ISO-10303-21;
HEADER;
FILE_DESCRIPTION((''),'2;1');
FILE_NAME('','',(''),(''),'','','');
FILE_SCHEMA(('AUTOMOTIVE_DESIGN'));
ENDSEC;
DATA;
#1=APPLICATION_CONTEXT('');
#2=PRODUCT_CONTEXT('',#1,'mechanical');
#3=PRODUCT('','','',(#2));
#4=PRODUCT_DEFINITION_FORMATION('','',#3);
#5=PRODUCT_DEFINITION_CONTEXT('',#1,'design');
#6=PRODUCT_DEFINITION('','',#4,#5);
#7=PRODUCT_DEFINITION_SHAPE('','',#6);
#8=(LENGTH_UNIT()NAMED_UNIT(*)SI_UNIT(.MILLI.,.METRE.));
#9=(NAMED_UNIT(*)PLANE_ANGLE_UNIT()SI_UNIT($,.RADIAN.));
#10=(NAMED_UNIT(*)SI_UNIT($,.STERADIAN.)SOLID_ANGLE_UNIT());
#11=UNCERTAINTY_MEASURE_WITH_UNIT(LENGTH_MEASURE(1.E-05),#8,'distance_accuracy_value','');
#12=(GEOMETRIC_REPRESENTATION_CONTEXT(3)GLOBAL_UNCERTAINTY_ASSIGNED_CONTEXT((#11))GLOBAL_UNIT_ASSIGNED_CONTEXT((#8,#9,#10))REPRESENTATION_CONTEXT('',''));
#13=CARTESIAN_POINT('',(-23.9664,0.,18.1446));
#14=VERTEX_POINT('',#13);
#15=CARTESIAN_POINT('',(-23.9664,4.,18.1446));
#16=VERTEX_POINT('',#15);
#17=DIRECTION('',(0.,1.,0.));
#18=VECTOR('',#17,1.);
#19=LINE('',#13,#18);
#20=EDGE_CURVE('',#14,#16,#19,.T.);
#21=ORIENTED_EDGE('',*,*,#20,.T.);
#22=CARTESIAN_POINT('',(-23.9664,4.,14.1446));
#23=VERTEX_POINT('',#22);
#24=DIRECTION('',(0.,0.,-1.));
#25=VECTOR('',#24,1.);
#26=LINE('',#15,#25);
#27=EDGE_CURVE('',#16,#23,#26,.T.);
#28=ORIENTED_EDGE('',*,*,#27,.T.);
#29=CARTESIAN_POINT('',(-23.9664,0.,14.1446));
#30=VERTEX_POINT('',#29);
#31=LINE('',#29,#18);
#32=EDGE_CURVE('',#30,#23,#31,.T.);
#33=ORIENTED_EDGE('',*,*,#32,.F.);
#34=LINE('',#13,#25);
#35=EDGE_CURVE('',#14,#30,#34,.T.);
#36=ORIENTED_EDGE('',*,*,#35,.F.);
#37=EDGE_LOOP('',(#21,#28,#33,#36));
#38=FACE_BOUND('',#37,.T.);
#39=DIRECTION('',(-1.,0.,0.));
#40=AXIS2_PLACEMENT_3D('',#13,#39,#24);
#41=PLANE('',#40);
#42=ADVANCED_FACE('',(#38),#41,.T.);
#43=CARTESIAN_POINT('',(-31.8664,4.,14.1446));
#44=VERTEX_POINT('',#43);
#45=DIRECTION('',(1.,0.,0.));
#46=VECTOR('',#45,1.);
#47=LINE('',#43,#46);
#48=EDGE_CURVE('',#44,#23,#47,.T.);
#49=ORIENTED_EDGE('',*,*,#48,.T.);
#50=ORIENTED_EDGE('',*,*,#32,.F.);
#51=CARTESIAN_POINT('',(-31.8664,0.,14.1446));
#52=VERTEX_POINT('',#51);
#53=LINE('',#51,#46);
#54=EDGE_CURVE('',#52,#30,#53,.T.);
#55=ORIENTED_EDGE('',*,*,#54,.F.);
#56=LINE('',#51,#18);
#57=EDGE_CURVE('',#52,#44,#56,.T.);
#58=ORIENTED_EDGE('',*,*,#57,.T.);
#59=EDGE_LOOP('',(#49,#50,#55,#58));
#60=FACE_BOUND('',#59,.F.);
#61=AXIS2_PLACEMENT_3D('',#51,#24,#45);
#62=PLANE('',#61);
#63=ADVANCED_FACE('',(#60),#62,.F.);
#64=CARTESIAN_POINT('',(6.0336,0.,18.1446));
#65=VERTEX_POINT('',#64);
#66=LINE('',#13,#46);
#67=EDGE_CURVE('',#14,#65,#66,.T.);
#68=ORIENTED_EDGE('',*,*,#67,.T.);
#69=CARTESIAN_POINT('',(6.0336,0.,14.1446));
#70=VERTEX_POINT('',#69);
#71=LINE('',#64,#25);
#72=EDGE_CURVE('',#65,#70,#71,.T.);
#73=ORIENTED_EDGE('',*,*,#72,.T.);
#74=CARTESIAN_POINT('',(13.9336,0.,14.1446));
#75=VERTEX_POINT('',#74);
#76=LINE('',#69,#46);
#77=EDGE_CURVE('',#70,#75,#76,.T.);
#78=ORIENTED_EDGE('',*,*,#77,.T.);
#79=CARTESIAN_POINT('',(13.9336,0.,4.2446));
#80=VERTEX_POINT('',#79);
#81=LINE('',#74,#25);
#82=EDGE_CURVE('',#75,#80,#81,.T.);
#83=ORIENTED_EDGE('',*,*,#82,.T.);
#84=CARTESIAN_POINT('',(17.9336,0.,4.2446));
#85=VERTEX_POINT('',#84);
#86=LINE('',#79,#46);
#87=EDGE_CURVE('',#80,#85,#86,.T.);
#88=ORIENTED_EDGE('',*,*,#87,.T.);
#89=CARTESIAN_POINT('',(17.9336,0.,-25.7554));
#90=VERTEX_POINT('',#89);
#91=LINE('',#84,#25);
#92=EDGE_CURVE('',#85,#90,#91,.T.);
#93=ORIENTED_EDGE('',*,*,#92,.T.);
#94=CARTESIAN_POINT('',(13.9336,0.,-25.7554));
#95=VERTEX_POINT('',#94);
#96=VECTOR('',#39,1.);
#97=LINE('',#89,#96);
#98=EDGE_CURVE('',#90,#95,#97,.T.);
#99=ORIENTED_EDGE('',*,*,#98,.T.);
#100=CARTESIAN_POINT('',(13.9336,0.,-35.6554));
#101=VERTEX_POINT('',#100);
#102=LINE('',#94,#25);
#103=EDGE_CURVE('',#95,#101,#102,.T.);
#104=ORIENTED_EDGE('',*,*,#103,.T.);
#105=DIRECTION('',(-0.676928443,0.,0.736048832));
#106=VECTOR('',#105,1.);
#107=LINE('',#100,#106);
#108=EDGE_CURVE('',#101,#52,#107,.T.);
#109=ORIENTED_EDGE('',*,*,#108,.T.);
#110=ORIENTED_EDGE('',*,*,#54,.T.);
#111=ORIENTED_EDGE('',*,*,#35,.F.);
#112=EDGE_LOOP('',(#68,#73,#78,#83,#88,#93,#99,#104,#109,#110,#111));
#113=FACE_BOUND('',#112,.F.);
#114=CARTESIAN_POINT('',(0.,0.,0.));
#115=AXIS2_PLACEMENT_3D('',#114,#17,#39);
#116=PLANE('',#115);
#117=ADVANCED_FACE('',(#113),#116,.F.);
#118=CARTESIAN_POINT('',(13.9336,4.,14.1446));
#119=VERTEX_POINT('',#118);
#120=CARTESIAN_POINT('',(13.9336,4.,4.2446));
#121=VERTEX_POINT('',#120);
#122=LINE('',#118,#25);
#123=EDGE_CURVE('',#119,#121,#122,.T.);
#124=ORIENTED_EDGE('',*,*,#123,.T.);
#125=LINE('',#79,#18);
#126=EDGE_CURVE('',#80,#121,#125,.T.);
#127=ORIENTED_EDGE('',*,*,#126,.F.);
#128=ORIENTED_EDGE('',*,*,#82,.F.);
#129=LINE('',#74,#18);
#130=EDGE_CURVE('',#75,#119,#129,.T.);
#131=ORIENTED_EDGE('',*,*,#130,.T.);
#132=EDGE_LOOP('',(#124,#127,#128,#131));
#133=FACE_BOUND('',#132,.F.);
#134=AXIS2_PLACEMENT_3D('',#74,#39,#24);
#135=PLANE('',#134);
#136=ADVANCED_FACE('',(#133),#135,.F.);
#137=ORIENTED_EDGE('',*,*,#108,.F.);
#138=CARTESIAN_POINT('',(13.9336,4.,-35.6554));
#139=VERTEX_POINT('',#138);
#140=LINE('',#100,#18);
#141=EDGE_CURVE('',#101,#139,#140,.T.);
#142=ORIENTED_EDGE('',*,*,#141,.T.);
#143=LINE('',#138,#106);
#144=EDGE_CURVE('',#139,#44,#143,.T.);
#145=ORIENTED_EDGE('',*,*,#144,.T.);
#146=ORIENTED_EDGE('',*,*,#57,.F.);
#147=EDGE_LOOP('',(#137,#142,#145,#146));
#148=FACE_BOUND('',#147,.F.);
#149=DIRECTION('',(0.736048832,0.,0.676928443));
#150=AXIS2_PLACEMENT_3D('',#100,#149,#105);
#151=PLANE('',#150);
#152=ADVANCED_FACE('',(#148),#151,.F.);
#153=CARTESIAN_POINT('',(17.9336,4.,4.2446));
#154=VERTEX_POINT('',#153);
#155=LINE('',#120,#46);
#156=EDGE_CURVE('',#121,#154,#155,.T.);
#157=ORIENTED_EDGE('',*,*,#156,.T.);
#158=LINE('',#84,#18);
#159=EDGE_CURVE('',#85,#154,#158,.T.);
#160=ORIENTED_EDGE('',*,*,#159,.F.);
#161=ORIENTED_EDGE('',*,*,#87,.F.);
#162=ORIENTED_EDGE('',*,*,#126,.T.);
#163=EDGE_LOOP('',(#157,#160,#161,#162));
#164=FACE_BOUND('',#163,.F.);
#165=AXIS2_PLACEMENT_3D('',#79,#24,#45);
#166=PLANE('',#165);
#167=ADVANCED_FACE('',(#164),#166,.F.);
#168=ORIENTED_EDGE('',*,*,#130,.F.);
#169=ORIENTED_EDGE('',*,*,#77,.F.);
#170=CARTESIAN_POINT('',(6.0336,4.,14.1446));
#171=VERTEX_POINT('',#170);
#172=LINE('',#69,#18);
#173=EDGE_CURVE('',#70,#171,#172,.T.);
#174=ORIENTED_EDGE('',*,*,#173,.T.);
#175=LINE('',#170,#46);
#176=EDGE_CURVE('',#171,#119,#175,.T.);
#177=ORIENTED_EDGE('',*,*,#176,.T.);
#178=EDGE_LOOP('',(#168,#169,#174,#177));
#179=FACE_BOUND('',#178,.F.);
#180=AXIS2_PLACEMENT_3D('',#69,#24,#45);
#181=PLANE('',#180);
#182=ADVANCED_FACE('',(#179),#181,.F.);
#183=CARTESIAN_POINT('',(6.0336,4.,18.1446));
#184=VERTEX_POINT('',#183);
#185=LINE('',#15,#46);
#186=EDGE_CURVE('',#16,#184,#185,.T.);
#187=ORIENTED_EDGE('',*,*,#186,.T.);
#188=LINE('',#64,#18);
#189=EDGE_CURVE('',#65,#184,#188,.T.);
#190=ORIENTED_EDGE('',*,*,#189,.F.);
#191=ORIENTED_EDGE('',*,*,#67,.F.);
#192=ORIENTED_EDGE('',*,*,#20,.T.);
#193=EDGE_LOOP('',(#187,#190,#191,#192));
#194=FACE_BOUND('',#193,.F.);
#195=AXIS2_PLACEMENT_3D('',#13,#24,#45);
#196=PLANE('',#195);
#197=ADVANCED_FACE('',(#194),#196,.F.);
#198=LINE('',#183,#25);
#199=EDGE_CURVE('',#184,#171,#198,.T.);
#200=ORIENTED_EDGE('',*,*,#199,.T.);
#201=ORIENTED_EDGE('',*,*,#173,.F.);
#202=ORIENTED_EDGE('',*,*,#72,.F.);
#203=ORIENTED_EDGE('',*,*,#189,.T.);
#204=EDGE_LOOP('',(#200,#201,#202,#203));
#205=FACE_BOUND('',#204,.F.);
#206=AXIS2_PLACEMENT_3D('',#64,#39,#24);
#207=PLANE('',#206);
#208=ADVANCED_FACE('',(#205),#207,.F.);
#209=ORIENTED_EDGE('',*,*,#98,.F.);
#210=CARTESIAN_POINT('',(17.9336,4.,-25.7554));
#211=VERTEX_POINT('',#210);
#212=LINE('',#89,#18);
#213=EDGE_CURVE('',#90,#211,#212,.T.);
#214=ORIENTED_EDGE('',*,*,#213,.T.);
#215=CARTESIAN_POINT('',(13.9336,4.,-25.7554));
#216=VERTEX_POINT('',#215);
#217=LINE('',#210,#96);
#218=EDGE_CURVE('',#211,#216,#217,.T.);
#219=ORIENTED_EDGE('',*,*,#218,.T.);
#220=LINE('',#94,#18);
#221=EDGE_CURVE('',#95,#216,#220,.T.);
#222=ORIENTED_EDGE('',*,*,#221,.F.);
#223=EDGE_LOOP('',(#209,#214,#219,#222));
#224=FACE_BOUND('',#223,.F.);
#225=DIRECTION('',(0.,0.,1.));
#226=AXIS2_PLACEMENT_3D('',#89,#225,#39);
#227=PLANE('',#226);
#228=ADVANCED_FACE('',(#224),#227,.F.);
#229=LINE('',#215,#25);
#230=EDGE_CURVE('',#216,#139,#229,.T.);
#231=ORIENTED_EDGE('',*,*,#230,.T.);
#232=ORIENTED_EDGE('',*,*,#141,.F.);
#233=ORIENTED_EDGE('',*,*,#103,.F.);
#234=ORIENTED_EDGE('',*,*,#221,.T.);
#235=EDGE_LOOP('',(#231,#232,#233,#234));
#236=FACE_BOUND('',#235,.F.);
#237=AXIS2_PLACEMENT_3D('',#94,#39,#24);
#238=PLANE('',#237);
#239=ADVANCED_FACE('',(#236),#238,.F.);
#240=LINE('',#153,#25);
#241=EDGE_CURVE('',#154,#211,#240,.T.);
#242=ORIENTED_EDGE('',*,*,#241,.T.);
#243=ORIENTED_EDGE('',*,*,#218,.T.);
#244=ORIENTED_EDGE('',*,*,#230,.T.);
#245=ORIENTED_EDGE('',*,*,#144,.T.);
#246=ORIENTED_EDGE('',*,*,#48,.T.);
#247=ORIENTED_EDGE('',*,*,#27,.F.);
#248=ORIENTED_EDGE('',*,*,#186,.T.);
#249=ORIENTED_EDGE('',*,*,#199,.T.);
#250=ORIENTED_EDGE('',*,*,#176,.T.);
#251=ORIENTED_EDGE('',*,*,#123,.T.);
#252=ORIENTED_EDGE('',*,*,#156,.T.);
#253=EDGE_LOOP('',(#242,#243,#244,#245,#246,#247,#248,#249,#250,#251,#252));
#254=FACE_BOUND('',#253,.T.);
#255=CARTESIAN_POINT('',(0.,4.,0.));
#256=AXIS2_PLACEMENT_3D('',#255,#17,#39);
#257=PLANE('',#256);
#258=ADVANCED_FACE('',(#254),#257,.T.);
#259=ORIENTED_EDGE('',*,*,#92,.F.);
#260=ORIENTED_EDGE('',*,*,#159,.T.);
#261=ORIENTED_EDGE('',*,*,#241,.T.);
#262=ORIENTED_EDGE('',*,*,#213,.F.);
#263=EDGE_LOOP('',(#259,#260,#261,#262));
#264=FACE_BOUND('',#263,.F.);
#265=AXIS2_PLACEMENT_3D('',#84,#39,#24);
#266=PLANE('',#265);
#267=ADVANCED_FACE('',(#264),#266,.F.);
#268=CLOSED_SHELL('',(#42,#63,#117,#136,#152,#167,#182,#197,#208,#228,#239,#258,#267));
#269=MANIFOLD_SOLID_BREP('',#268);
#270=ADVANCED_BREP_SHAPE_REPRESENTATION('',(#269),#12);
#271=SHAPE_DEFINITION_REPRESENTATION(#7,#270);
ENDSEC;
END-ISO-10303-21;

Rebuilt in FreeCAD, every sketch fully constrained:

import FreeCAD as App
import Part
import Sketcher

V = App.Vector
Q = App.Units.Quantity

doc = App.newDocument("Part")
body = doc.addObject("PartDesign::Body", "Body")

# Sketch on XZ plane
sketch1 = body.newObject("Sketcher::SketchObject", "Sketch")
sketch1.AttachmentSupport = (doc.getObject("XZ_Plane"), [""])
sketch1.MapMode = "FlatFace"
sketch1.addGeometry([
    Part.LineSegment(V(-24, 14.1, 0), V(-24, 18.1, 0)),  # 0
    Part.LineSegment(V(-24, 18.1, 0), V(6, 18.1, 0)),  # 1
    Part.LineSegment(V(6, 18.1, 0), V(6, 14.1, 0)),  # 2
    Part.LineSegment(V(6, 14.1, 0), V(13.9, 14.1, 0)),  # 3
    Part.LineSegment(V(13.9, 14.1, 0), V(13.9, 4.2, 0)),  # 4
    Part.LineSegment(V(13.9, 4.2, 0), V(17.9, 4.2, 0)),  # 5
    Part.LineSegment(V(17.9, 4.2, 0), V(17.9, -25.8, 0)),  # 6
    Part.LineSegment(V(17.9, -25.8, 0), V(13.9, -25.8, 0)),  # 7
    Part.LineSegment(V(13.9, -25.8, 0), V(13.9, -35.7, 0)),  # 8
    Part.LineSegment(V(13.9, -35.7, 0), V(-31.9, 14.1, 0)),  # 9
    Part.LineSegment(V(-31.9, 14.1, 0), V(-24, 14.1, 0)),  # 10
], False)
sketch1.addConstraint([
    Sketcher.Constraint("Coincident", 0, 2, 1, 1),
    Sketcher.Constraint("Coincident", 1, 2, 2, 1),
    Sketcher.Constraint("Coincident", 2, 2, 3, 1),
    Sketcher.Constraint("Coincident", 3, 2, 4, 1),
    Sketcher.Constraint("Coincident", 4, 2, 5, 1),
    Sketcher.Constraint("Coincident", 5, 2, 6, 1),
    Sketcher.Constraint("Coincident", 6, 2, 7, 1),
    Sketcher.Constraint("Coincident", 7, 2, 8, 1),
    Sketcher.Constraint("Coincident", 8, 2, 9, 1),
    Sketcher.Constraint("Coincident", 9, 2, 10, 1),
    Sketcher.Constraint("Coincident", 10, 2, 0, 1),
    Sketcher.Constraint("Vertical", 0),
    Sketcher.Constraint("Horizontal", 1),
    Sketcher.Constraint("Vertical", 2),
    Sketcher.Constraint("Horizontal", 3),
    Sketcher.Constraint("Vertical", 4),
    Sketcher.Constraint("Horizontal", 5),
    Sketcher.Constraint("Vertical", 6),
    Sketcher.Constraint("Horizontal", 7),
    Sketcher.Constraint("Vertical", 8),
    Sketcher.Constraint("Horizontal", 10),
    Sketcher.Constraint("Horizontal", 3, 2, 9, 2),
    Sketcher.Constraint("Vertical", 4, 2, 7, 2),
    Sketcher.Constraint("Equal", 3, 10),
    Sketcher.Constraint("Equal", 7, 0),
    Sketcher.Constraint("Equal", 1, 6),
    Sketcher.Constraint("Equal", 4, 8),
    Sketcher.Constraint("DistanceX", 1, 1, 1, 2, Q("30 mm")),
    Sketcher.Constraint("DistanceX", 5, 1, 5, 2, Q("4 mm")),
    Sketcher.Constraint("DistanceX", 3, 1, 3, 2, Q("7.9 mm")),
    Sketcher.Constraint("DistanceY", 4, 2, 4, 1, Q("9.9 mm")),
    Sketcher.Constraint("DistanceX", 0, 2, -1, 1, Q("23.9664 mm")),
    Sketcher.Constraint("DistanceY", -1, 1, 0, 2, Q("18.1446 mm")),
])
pad1 = body.newObject("PartDesign::Pad", "Pad")
pad1.Profile = sketch1
pad1.Length = 4
pad1.Reversed = True

doc.recompute()
